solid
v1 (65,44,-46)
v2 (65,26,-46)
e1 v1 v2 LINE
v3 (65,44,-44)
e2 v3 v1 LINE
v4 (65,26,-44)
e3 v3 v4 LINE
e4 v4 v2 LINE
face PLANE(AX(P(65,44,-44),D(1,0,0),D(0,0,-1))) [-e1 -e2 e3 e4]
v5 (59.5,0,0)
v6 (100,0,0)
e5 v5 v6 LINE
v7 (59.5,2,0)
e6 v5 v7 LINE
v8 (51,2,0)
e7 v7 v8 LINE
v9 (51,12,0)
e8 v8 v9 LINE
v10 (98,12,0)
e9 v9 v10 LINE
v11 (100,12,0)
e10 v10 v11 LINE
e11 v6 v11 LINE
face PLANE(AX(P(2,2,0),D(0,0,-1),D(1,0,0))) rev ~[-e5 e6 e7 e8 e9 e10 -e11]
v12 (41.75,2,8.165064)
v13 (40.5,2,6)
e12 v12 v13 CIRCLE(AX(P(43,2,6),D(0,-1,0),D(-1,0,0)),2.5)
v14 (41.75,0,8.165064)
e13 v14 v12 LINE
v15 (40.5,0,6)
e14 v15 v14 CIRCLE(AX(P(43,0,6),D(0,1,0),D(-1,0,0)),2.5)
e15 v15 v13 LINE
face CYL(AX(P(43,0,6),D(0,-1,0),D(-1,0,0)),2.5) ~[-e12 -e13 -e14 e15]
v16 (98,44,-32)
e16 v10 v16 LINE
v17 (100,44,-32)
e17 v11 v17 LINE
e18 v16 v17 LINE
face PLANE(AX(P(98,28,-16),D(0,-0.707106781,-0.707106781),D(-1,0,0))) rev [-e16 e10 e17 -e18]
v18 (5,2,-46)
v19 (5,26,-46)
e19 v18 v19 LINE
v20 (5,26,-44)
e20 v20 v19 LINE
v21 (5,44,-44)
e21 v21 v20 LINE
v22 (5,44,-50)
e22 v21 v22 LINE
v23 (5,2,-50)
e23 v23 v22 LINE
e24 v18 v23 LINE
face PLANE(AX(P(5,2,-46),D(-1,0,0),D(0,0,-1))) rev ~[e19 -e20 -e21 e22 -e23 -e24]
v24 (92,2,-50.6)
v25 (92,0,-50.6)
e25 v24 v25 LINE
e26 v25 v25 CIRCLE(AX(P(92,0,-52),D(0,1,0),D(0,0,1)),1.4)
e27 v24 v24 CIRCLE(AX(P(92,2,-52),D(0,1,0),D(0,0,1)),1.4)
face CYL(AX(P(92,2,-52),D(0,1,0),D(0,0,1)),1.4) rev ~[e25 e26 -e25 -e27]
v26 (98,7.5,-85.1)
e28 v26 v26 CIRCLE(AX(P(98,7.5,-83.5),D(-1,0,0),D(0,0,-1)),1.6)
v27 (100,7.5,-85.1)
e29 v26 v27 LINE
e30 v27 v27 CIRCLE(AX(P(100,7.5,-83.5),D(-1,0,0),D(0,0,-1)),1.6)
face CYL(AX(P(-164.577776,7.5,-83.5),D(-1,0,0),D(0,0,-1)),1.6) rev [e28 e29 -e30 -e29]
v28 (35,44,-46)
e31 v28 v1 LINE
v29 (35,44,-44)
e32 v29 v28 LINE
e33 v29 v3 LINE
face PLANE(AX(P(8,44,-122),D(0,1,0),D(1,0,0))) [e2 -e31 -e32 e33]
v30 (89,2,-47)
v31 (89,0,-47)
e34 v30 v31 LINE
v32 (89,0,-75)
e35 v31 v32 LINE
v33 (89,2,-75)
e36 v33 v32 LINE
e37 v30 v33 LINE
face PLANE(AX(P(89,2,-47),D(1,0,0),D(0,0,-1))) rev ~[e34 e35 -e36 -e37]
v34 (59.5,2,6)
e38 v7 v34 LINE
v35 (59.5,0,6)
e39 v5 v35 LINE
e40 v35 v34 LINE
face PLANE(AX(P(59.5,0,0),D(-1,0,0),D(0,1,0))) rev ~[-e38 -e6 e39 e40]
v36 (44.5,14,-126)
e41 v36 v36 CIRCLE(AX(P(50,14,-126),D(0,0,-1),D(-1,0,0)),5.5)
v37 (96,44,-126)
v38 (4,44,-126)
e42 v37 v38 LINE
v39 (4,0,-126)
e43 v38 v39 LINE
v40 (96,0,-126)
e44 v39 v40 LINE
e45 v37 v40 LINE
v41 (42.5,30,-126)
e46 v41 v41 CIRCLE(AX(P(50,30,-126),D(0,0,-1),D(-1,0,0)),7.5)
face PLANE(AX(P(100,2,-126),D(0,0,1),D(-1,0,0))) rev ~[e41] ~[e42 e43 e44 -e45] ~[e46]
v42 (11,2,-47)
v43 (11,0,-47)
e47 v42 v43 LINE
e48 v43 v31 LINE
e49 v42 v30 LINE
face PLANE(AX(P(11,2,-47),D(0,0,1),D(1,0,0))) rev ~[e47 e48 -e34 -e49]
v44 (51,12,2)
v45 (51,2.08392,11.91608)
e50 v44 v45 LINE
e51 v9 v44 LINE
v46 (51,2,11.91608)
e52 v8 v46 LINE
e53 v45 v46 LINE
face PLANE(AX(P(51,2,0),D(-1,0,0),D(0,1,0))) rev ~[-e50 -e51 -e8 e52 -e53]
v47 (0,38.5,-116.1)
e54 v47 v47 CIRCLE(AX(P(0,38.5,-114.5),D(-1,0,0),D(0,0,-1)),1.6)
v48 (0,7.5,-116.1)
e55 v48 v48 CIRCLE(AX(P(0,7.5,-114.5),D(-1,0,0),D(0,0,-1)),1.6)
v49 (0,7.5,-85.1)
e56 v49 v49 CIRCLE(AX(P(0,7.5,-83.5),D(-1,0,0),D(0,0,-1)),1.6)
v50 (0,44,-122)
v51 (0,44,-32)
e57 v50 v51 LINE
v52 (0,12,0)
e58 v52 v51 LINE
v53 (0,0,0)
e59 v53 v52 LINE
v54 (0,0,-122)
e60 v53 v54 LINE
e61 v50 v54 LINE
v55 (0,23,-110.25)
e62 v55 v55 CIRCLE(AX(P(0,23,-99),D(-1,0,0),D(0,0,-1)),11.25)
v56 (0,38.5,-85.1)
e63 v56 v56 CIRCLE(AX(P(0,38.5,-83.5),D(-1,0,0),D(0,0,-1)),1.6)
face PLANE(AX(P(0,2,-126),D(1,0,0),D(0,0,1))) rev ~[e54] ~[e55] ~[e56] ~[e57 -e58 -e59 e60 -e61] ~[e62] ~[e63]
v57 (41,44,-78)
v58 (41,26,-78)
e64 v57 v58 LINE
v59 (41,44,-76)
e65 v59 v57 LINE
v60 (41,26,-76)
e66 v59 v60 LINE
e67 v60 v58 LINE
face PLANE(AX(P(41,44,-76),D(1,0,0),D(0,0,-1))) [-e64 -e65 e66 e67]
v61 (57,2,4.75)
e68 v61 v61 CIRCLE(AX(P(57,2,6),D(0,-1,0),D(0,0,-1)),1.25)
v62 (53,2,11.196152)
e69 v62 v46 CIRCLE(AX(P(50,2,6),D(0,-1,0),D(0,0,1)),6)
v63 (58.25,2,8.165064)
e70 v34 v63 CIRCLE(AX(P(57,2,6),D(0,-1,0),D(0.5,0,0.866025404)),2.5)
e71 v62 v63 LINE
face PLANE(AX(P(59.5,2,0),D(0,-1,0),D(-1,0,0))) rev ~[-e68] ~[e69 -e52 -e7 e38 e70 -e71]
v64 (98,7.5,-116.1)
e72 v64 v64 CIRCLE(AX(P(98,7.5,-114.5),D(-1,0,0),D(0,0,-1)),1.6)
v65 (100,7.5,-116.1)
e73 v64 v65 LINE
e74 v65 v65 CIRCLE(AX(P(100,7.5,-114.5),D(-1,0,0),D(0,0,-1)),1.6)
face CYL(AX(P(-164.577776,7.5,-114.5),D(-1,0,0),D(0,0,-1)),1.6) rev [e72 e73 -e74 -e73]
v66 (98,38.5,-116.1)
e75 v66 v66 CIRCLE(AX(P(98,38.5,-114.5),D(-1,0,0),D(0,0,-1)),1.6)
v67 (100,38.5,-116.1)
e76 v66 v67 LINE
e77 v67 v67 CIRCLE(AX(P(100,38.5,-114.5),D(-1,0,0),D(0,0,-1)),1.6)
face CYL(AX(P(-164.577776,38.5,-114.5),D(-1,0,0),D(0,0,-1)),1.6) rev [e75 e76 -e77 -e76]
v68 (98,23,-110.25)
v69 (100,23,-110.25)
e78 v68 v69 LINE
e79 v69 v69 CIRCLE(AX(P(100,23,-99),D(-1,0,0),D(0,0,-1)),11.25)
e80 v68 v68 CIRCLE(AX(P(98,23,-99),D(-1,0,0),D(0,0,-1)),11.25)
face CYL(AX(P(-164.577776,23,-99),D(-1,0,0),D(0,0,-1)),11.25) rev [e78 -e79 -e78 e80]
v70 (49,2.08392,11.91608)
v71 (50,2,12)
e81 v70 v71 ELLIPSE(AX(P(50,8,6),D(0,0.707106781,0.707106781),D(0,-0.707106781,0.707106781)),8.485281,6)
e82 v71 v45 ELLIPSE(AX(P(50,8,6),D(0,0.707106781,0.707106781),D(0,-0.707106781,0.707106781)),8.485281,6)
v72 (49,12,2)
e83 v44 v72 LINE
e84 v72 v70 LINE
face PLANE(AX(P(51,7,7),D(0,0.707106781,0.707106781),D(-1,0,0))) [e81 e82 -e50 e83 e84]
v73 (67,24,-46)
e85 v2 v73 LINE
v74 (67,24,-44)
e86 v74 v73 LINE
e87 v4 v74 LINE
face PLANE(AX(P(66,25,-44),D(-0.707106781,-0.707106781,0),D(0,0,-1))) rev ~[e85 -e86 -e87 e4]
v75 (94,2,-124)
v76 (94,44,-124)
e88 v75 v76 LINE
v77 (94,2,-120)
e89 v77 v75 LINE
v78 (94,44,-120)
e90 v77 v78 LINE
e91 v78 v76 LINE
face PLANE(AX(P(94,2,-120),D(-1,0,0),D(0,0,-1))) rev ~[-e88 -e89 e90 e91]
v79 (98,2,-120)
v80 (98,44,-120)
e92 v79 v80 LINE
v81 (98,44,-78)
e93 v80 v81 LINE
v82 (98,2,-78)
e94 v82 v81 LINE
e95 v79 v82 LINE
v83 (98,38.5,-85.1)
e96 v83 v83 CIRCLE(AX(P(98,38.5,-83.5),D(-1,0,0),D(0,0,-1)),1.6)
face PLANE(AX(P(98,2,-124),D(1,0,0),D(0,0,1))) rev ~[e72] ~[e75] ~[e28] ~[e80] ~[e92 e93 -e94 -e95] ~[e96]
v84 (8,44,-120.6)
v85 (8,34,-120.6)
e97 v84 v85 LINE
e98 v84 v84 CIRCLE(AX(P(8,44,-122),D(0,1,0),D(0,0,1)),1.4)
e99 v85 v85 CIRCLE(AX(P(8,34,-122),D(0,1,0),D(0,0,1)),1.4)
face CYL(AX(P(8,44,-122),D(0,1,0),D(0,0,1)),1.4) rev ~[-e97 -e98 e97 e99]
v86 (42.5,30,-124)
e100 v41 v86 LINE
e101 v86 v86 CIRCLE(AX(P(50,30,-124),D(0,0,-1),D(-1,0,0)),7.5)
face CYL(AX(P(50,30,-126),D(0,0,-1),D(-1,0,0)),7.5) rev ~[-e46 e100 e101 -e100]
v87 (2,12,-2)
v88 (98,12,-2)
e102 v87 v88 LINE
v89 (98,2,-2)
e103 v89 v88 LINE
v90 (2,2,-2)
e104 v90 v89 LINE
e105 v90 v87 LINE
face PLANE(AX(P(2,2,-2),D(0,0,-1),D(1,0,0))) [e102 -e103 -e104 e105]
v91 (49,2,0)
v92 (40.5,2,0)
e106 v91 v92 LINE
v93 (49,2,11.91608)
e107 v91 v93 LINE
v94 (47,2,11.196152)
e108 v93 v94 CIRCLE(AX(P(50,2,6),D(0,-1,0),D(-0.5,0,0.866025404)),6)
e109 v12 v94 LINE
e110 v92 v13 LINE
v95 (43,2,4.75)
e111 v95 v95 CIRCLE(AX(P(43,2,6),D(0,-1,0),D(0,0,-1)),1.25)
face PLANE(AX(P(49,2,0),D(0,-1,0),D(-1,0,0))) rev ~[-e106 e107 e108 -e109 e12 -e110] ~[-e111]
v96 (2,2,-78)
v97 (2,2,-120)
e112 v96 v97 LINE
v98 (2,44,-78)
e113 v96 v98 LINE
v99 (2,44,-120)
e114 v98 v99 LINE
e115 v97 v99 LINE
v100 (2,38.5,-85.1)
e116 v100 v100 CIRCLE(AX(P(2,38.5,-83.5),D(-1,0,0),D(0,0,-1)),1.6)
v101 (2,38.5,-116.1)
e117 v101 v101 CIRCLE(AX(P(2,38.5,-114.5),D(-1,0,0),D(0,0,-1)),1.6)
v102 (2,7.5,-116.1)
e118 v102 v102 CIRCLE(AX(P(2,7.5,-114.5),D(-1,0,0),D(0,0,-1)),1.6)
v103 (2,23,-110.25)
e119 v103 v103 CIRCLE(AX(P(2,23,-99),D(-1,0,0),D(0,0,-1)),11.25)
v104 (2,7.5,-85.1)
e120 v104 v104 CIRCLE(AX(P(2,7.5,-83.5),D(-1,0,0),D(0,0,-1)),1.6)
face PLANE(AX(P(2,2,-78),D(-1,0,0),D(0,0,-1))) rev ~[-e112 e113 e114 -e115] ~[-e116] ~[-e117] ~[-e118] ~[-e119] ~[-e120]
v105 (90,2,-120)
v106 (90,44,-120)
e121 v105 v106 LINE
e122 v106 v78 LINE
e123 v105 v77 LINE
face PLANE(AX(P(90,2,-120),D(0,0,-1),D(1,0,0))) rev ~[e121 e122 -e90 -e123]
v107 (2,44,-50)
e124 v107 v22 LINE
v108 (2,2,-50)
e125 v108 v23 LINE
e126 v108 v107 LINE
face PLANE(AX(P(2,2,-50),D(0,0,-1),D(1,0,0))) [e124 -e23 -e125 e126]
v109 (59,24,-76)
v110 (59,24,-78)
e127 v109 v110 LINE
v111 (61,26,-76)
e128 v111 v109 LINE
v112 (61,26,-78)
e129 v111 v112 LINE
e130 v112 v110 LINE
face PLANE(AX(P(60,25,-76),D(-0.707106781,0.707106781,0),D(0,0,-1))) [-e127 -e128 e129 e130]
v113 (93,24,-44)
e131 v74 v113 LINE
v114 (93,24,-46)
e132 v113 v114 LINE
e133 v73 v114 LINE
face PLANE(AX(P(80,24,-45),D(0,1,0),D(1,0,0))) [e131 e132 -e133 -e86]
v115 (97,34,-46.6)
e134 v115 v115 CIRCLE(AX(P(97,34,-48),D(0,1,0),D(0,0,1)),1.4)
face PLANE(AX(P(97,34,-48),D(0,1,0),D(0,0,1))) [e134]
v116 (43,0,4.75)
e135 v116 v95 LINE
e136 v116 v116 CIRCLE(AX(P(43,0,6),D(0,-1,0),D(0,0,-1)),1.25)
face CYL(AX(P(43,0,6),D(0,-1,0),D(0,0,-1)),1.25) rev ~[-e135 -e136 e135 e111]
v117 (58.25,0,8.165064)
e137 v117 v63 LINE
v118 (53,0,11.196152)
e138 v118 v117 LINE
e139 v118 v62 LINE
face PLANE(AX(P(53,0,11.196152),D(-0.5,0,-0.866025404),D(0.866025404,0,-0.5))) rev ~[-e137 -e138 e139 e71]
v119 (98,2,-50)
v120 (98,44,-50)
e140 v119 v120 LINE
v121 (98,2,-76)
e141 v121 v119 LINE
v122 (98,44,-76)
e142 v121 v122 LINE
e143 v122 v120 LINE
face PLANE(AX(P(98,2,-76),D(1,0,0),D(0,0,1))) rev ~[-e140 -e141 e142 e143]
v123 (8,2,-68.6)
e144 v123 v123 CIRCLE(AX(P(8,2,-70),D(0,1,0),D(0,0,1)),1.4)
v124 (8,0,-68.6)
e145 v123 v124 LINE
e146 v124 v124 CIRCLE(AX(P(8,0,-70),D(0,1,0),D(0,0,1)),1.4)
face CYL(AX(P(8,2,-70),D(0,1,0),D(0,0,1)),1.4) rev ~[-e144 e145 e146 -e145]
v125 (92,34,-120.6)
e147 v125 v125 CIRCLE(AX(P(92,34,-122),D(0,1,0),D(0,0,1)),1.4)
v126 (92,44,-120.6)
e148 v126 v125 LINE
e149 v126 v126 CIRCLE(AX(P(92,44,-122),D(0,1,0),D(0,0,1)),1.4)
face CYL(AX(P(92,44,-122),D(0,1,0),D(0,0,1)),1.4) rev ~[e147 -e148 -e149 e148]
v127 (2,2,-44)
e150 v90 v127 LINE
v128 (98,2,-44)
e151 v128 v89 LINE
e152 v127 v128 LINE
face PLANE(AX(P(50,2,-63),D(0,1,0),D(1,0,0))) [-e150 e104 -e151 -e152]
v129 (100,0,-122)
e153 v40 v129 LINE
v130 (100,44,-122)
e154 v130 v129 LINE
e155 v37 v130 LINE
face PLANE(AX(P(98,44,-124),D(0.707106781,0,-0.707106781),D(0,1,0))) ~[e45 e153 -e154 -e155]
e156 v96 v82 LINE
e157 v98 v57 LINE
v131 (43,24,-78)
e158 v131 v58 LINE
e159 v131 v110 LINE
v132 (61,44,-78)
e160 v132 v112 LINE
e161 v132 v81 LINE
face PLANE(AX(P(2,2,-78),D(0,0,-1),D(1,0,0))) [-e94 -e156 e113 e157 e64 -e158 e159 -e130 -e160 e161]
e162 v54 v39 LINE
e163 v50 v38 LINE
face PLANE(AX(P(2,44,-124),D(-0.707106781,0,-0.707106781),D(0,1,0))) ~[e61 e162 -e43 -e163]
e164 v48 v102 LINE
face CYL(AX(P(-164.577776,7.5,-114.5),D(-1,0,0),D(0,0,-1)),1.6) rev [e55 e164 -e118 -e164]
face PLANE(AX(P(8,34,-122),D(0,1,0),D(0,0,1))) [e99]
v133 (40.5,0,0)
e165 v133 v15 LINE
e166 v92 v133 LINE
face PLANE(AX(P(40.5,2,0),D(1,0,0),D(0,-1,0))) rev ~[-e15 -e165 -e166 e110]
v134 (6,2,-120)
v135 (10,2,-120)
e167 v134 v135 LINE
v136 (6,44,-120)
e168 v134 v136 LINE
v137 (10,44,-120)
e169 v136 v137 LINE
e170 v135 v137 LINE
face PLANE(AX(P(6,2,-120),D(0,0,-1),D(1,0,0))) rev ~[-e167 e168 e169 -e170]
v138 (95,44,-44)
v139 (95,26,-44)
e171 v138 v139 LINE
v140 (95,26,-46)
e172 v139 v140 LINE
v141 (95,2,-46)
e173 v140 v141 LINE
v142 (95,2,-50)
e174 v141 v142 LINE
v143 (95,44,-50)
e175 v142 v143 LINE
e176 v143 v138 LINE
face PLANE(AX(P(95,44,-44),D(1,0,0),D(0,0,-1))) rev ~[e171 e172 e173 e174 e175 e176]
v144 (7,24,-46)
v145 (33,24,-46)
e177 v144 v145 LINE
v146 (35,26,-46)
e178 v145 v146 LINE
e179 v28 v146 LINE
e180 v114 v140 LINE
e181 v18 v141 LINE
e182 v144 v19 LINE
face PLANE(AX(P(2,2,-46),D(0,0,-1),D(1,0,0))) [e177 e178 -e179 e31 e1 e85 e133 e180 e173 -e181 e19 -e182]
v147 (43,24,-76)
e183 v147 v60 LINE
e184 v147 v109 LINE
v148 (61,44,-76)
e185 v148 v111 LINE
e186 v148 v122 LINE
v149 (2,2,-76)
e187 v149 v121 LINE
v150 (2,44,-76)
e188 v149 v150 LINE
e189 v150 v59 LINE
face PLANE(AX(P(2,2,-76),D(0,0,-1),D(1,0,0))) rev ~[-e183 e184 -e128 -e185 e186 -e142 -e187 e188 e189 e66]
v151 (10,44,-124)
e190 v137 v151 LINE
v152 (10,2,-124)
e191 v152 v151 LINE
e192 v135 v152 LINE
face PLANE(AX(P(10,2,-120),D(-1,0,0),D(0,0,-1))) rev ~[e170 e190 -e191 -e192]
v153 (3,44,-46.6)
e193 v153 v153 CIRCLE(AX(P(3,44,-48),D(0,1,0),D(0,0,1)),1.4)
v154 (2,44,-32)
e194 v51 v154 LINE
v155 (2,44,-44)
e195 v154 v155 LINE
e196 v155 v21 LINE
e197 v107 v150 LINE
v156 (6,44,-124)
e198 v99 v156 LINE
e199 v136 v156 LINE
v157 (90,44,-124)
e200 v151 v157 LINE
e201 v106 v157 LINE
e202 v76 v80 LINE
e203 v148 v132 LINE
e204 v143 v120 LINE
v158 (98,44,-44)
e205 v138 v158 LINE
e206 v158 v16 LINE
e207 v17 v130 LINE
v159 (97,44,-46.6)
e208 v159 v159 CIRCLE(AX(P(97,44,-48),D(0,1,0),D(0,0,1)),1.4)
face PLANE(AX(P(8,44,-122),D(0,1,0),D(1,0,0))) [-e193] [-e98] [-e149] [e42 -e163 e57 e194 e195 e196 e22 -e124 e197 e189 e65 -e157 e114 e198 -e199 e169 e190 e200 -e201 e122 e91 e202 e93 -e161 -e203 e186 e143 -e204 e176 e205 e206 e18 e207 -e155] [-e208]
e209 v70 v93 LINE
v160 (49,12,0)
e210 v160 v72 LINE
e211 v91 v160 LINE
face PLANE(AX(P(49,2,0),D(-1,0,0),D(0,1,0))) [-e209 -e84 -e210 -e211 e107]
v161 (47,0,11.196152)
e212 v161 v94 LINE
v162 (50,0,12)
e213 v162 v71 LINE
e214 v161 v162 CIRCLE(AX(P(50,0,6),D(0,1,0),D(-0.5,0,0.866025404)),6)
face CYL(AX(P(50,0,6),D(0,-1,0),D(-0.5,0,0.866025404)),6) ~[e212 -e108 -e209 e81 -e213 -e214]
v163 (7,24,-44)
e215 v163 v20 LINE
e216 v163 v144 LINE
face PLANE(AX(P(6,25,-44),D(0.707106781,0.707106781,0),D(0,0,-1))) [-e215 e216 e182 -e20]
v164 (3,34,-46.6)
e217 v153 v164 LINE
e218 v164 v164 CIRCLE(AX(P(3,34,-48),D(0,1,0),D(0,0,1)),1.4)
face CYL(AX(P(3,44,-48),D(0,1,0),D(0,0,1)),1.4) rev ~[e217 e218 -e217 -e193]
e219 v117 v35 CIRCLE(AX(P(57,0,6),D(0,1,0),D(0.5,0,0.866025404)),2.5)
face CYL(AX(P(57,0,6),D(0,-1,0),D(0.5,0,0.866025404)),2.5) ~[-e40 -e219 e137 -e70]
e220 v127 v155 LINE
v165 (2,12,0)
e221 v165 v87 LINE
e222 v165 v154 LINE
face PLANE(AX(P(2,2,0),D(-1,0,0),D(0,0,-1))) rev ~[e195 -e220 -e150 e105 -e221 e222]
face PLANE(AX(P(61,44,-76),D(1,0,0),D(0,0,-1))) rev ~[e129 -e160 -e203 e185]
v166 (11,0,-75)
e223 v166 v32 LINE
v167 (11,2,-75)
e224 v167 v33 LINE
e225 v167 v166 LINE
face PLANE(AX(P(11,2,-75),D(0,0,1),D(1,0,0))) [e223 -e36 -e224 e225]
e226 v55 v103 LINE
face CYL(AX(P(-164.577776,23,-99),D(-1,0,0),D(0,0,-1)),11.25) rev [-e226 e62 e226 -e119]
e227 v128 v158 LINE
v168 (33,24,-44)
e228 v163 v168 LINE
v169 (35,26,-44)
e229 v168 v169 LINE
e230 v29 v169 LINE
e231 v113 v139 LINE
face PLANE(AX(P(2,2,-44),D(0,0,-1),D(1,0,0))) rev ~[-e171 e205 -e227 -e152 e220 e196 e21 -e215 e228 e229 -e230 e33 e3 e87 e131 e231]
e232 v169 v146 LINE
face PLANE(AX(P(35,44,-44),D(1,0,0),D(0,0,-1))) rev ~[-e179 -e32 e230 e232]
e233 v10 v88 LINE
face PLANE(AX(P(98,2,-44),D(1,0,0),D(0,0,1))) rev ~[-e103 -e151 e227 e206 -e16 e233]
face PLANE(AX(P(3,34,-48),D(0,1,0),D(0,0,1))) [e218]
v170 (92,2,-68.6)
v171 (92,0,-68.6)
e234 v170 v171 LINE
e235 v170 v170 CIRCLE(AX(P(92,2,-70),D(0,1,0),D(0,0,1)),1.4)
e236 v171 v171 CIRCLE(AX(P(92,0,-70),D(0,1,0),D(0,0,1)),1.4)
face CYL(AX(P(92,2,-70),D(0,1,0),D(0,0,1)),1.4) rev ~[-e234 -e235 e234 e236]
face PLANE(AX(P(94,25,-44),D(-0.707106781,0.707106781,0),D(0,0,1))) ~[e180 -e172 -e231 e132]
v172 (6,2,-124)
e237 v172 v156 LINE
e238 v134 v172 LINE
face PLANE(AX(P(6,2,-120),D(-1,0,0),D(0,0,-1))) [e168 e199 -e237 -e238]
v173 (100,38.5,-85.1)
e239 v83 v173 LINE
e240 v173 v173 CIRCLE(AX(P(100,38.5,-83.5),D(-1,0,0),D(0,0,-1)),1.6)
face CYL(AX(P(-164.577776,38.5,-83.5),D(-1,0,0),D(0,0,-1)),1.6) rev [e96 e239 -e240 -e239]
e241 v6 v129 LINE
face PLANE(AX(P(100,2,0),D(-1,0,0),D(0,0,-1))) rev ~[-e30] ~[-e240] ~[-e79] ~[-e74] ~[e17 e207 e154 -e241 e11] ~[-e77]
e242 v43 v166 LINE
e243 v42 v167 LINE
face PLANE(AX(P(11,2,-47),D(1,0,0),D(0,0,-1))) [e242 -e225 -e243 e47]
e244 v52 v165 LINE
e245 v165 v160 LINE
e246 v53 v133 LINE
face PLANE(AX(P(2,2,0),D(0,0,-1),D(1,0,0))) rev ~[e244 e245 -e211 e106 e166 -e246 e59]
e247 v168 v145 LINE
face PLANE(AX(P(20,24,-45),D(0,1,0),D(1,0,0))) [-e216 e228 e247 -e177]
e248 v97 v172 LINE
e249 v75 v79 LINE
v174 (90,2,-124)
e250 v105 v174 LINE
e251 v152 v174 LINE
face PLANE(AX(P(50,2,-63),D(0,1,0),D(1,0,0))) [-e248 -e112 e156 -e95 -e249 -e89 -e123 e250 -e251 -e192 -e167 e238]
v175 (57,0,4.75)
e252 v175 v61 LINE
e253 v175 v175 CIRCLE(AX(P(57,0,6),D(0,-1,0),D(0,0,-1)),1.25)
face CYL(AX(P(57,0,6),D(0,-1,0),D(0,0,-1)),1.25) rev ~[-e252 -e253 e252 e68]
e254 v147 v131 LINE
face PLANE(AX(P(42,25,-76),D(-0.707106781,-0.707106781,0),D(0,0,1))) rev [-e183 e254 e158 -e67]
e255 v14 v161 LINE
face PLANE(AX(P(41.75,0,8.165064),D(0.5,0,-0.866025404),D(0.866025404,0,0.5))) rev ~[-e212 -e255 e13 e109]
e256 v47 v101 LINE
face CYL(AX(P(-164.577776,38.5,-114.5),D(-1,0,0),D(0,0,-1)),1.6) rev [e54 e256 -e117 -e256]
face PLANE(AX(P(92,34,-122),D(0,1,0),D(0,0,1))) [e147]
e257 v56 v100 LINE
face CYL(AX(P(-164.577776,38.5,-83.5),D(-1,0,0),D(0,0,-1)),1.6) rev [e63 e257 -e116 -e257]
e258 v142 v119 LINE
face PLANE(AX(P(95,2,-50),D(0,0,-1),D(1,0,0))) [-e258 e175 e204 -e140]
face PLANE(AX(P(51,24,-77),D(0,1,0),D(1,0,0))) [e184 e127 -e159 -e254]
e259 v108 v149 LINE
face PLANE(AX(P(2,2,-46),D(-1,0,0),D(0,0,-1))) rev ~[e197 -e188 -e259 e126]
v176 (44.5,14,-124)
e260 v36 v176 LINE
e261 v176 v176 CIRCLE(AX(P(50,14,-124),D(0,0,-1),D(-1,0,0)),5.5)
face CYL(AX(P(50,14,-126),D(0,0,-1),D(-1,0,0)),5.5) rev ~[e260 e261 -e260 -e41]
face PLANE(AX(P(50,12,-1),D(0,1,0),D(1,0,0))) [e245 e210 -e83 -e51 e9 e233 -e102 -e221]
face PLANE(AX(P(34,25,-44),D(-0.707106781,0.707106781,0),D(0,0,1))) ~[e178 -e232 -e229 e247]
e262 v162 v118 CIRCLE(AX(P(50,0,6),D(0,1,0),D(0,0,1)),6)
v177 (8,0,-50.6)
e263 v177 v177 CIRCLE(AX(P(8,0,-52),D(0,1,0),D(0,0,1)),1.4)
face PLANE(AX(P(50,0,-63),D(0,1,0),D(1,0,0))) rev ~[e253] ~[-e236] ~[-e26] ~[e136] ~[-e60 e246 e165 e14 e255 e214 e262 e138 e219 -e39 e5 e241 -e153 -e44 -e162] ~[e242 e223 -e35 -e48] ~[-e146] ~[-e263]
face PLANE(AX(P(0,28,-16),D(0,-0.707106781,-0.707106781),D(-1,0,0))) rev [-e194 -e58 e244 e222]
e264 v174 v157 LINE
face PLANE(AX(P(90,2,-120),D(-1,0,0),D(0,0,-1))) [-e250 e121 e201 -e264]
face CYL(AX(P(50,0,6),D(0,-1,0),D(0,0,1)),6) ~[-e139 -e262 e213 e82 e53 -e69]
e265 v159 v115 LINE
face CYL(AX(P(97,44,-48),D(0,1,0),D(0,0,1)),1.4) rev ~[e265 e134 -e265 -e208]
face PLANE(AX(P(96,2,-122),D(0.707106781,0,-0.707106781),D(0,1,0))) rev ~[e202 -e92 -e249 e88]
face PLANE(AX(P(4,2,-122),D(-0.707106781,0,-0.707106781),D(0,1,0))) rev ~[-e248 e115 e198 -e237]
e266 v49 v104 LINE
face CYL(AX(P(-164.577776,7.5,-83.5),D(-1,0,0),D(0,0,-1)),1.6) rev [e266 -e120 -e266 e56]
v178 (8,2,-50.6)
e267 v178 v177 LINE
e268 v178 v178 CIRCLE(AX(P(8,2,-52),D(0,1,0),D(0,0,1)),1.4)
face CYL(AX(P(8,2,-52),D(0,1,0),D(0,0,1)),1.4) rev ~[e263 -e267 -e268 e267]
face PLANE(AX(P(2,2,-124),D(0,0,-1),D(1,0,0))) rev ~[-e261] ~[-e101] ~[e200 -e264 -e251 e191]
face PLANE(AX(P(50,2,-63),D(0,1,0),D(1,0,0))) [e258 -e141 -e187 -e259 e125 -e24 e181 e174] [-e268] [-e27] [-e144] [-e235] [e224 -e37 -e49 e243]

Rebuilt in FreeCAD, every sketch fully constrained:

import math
import FreeCAD as App
import Part
import Sketcher

V = App.Vector
Q = App.Units.Quantity


def edges_at(feature, points):
    """Names of the edges that pass closest to the given points."""
    edges = feature.Shape.Edges
    near = lambda p: min(range(len(edges)), key=lambda i: edges[i].distToShape(Part.Vertex(*p))[0])
    return sorted({f"Edge{near(p) + 1}" for p in points})


def add_polygon(sketch, points):
    """Adds a closed chain of lines whose ends are joined by coincident constraints."""
    first, n = sketch.GeometryCount, len(points)
    for a, b in zip(points, points[1:] + points[:1]):
        sketch.addGeometry(Part.LineSegment(App.Vector(*a, 0), App.Vector(*b, 0)), False)
    for i in range(n):
        sketch.addConstraint(Sketcher.Constraint("Coincident", first + i, 2, first + (i + 1) % n, 1))

doc = App.newDocument("Part")
params = doc.addObject("Spreadsheet::Sheet", "Params")
for row, (alias, value) in enumerate([
    ("sketch1_width", "100 mm"),
    ("sketch1_height", "126 mm"),
    ("pad1_length", "2 mm"),
    ("sketch2_width", "2 mm"),
    ("sketch2_width2", "96 mm"),
    ("sketch2_height", "126 mm"),
    ("sketch2_height2", "44 mm"),
    ("sketch2_height3", "30 mm"),
    ("pad2_length", "42 mm"),
    ("chamfer_size", "32 mm"),
    ("chamfer2_size", "4 mm"),
    ("sketch3_diameter", "22.5 mm"),
    ("sketch3_diameter2", "3.2 mm"),
    ("sketch4_diameter", "2.8 mm"),
    ("sketch4_width", "78 mm"),
    ("sketch4_height", "28 mm"),
    ("sketch5_width", "96 mm"),
    ("sketch5_height", "2 mm"),
    ("pad3_length", "10 mm"),
    ("sketch6_width", "4 mm"),
    ("sketch6_width2", "3 mm"),
    ("pad4_length", "42 mm"),
    ("sketch7_diameter", "2.8 mm"),
    ("pocket3_length", "10 mm"),
    ("sketch8_width", "30 mm"),
    ("sketch8_width2", "20 mm"),
    ("sketch8_height", "2 mm"),
    ("pocket4_length", "20 mm"),
    ("chamfer3_size", "2 mm"),
    ("sketch9_diameter", "11 mm"),
    ("sketch9_diameter2", "15 mm"),
    ("pocket5_length", "2 mm"),
    ("sketch10_width", "2 mm"),
    ("sketch10_width2", "19 mm"),
    ("sketch10_height", "10 mm"),
    ("pad5_length", "12 mm"),
    ("chamfer4_size", "10 mm"),
    ("sketch11_radius", "6 mm"),
    ("sketch11_diameter", "2.5 mm"),
    ("sketch11_radius2", "2.5 mm"),
    ("pocket6_length", "2.3 mm"),
], start=1):
    params.set(f"A{row}", alias)
    params.set(f"B{row}", "=" + value)
    params.setAlias(f"B{row}", alias)

body = doc.addObject("PartDesign::Body", "Body")

# Sketch on XZ plane
sketch1 = body.newObject("Sketcher::SketchObject", "Sketch")
sketch1.AttachmentSupport = (doc.getObject("XZ_Plane"), [""])
sketch1.MapMode = "FlatFace"
add_polygon(sketch1, [(0, -126), (0, 0), (100, 0), (100, -126)])  # lines 0-3
sketch1.addConstraint([
    Sketcher.Constraint("Vertical", 0),
    Sketcher.Constraint("Horizontal", 1),
    Sketcher.Constraint("Vertical", 2),
    Sketcher.Constraint("Horizontal", 3),
    Sketcher.Constraint("Coincident", 0, 2, -1, 1),
    Sketcher.Constraint("DistanceX", 1, 1, 1, 2, Q("100 mm")),
    Sketcher.Constraint("DistanceY", 0, 1, 0, 2, Q("126 mm")),
])
sketch1.setExpression("Constraints[9]", "Params.sketch1_width")
sketch1.setExpression("Constraints[10]", "Params.sketch1_height")
pad1 = body.newObject("PartDesign::Pad", "Pad")
pad1.Profile = sketch1
pad1.setExpression("Length", "Params.pad1_length")
pad1.Reversed = True

# Sketch on XZ plane
sketch2 = body.newObject("Sketcher::SketchObject", "Sketch001")
sketch2.AttachmentSupport = (doc.getObject("XZ_Plane"), [""])
sketch2.MapMode = "FlatFace"
sketch2.AttachmentOffset = App.Placement(V(0, 0, -2), App.Rotation())
add_polygon(sketch2, [(0, -126), (0, 0), (2, 0), (2, -44), (98, -44), (98, 0), (100, 0), (100, -126)])  # lines 0-7
add_polygon(sketch2, [(2, -46), (2, -76), (98, -76), (98, -46)])  # lines 8-11
add_polygon(sketch2, [(2, -78), (2, -124), (98, -124), (98, -78)])  # lines 12-15
sketch2.addConstraint([
    Sketcher.Constraint("Vertical", 0),
    Sketcher.Constraint("Horizontal", 1),
    Sketcher.Constraint("Vertical", 2),
    Sketcher.Constraint("Horizontal", 3),
    Sketcher.Constraint("Vertical", 4),
    Sketcher.Constraint("Horizontal", 5),
    Sketcher.Constraint("Vertical", 6),
    Sketcher.Constraint("Horizontal", 7),
    Sketcher.Constraint("Vertical", 8),
    Sketcher.Constraint("Horizontal", 9),
    Sketcher.Constraint("Vertical", 10),
    Sketcher.Constraint("Horizontal", 11),
    Sketcher.Constraint("Vertical", 12),
    Sketcher.Constraint("Horizontal", 13),
    Sketcher.Constraint("Vertical", 14),
    Sketcher.Constraint("Horizontal", 15),
    Sketcher.Constraint("Coincident", 0, 2, -1, 1),
    Sketcher.Constraint("PointOnObject", 4, 2, -1),
    Sketcher.Constraint("Vertical", 2, 2, 8, 2),
    Sketcher.Constraint("Vertical", 4, 2, 9, 2),
    Sketcher.Constraint("Vertical", 11, 2, 12, 2),
    Sketcher.Constraint("Vertical", 10, 2, 13, 2),
    Sketcher.Constraint("Equal", 1, 5),
    Sketcher.Constraint("DistanceX", 1, 1, 1, 2, Q("2 mm")),
    Sketcher.Constraint("DistanceX", 3, 1, 3, 2, Q("96 mm")),
    Sketcher.Constraint("DistanceY", 0, 1, 0, 2, Q("126 mm")),
    Sketcher.Constraint("DistanceY", 2, 2, 2, 1, Q("44 mm")),
    Sketcher.Constraint("DistanceY", 8, 2, 8, 1, Q("30 mm")),
    Sketcher.Constraint("DistanceY", 12, 2, 12, 1, Q("46 mm")),
    Sketcher.Constraint("DistanceY", 8, 2, -1, 1, Q("76 mm")),
    Sketcher.Constraint("DistanceY", 12, 2, -1, 1, Q("124 mm")),
])
sketch2.setExpression("Constraints[39]", "Params.sketch2_width")
sketch2.setExpression("Constraints[40]", "Params.sketch2_width2")
sketch2.setExpression("Constraints[41]", "Params.sketch2_height")
sketch2.setExpression("Constraints[42]", "Params.sketch2_height2")
sketch2.setExpression("Constraints[43]", "Params.sketch2_height3")
pad2 = body.newObject("PartDesign::Pad", "Pad001")
pad2.Profile = sketch2
pad2.setExpression("Length", "Params.pad2_length")
pad2.Reversed = True
doc.recompute()

chamfer = body.newObject("PartDesign::Chamfer", "Chamfer")
chamfer.Base = (pad2, edges_at(pad2, [(99, 44, 0), (1, 44, 0)]))
chamfer.setExpression("Size", "Params.chamfer_size")
doc.recompute()

chamfer2 = body.newObject("PartDesign::Chamfer", "Chamfer001")
chamfer2.Base = (chamfer, edges_at(chamfer, [
    (2, 23, -124),
    (98, 23, -124),
    (0, 22, -126),
    (100, 22, -126),
]))
chamfer2.setExpression("Size", "Params.chamfer2_size")

# Sketch on YZ plane
sketch3 = body.newObject("Sketcher::SketchObject", "Sketch002")
sketch3.AttachmentSupport = (doc.getObject("YZ_Plane"), [""])
sketch3.MapMode = "FlatFace"
sketch3.AttachmentOffset = App.Placement(V(0, 0, 2), App.Rotation())
sketch3.addGeometry([
    Part.Circle(V(23, -99, 0), V(0, 0, 1), 11.2),  # 0
    Part.Circle(V(38.5, -83.5, 0), V(0, 0, 1), 1.6),  # 1
    Part.Circle(V(38.5, -114.5, 0), V(0, 0, 1), 1.6),  # 2
    Part.Circle(V(7.5, -114.5, 0), V(0, 0, 1), 1.6),  # 3
    Part.Circle(V(7.5, -83.5, 0), V(0, 0, 1), 1.6),  # 4
], False)
sketch3.addConstraint([
    Sketcher.Constraint("Equal", 1, 2),
    Sketcher.Constraint("Equal", 2, 3),
    Sketcher.Constraint("Equal", 3, 4),
    Sketcher.Constraint("Horizontal", 2, 3, 3, 3),
    Sketcher.Constraint("Horizontal", 1, 3, 4, 3),
    Sketcher.Constraint("Vertical", 1, 3, 2, 3),
    Sketcher.Constraint("Vertical", 3, 3, 4, 3),
    Sketcher.Constraint("Diameter", 0, Q("22.5 mm")),
    Sketcher.Constraint("Diameter", 1, Q("3.2 mm")),
    Sketcher.Constraint("DistanceX", -1, 1, 0, 3, Q("23 mm")),
    Sketcher.Constraint("DistanceY", 0, 3, -1, 1, Q("99 mm")),
    Sketcher.Constraint("DistanceY", 2, 3, 1, 3, Q("31 mm")),
    Sketcher.Constraint("DistanceX", 3, 3, 2, 3, Q("31 mm")),
    Sketcher.Constraint("DistanceX", -1, 1, 1, 3, Q("38.5 mm")),
    Sketcher.Constraint("DistanceY", 1, 3, -1, 1, Q("83.5 mm")),
])
sketch3.setExpression("Constraints[7]", "Params.sketch3_diameter")
sketch3.setExpression("Constraints[8]", "Params.sketch3_diameter2")
pocket1 = body.newObject("PartDesign::Pocket", "Pocket")
pocket1.Profile = sketch3
pocket1.Type = "ThroughAll"
pocket1.Midplane = True

# Sketch on XZ plane
sketch4 = body.newObject("Sketcher::SketchObject", "Sketch003")
sketch4.AttachmentSupport = (doc.getObject("XZ_Plane"), [""])
sketch4.MapMode = "FlatFace"
sketch4.AttachmentOffset = App.Placement(V(0, 0, -2), App.Rotation())
sketch4.addGeometry(Part.Circle(V(8, -70, 0), V(0, 0, 1), 1.4), False)  # 0
sketch4.addGeometry(Part.Circle(V(8, -52, 0), V(0, 0, 1), 1.4), False)  # 1
sketch4.addGeometry(Part.Circle(V(92, -70, 0), V(0, 0, 1), 1.4), False)  # 2
sketch4.addGeometry(Part.Circle(V(92, -52, 0), V(0, 0, 1), 1.4), False)  # 3
add_polygon(sketch4, [(11, -75), (11, -47), (89, -47), (89, -75)])  # lines 4-7
sketch4.addConstraint([
    Sketcher.Constraint("Vertical", 4),
    Sketcher.Constraint("Horizontal", 5),
    Sketcher.Constraint("Vertical", 6),
    Sketcher.Constraint("Horizontal", 7),
    Sketcher.Constraint("Equal", 0, 1),
    Sketcher.Constraint("Equal", 1, 2),
    Sketcher.Constraint("Equal", 2, 3),
    Sketcher.Constraint("Horizontal", 0, 3, 2, 3),
    Sketcher.Constraint("Horizontal", 1, 3, 3, 3),
    Sketcher.Constraint("Vertical", 0, 3, 1, 3),
    Sketcher.Constraint("Vertical", 2, 3, 3, 3),
    Sketcher.Constraint("Diameter", 0, Q("2.8 mm")),
    Sketcher.Constraint("DistanceX", 5, 1, 5, 2, Q("78 mm")),
    Sketcher.Constraint("DistanceY", 4, 1, 4, 2, Q("28 mm")),
    Sketcher.Constraint("DistanceX", -1, 1, 0, 3, Q("8 mm")),
    Sketcher.Constraint("DistanceY", 0, 3, -1, 1, Q("70 mm")),
    Sketcher.Constraint("DistanceY", 1, 3, -1, 1, Q("52 mm")),
    Sketcher.Constraint("DistanceX", -1, 1, 2, 3, Q("92 mm")),
    Sketcher.Constraint("DistanceX", -1, 1, 4, 2, Q("11 mm")),
    Sketcher.Constraint("DistanceY", 4, 2, -1, 1, Q("47 mm")),
])
sketch4.setExpression("Constraints[15]", "Params.sketch4_diameter")
sketch4.setExpression("Constraints[16]", "Params.sketch4_width")
sketch4.setExpression("Constraints[17]", "Params.sketch4_height")
pocket2 = body.newObject("PartDesign::Pocket", "Pocket001")
pocket2.Profile = sketch4
pocket2.Type = "ThroughAll"
pocket2.Reversed = True

# Sketch on XZ plane
sketch5 = body.newObject("Sketcher::SketchObject", "Sketch004")
sketch5.AttachmentSupport = (doc.getObject("XZ_Plane"), [""])
sketch5.MapMode = "FlatFace"
sketch5.AttachmentOffset = App.Placement(V(0, 0, -2), App.Rotation())
add_polygon(sketch5, [(2, -2), (2, 0), (98, 0), (98, -2)])  # lines 0-3
sketch5.addConstraint([
    Sketcher.Constraint("Vertical", 0),
    Sketcher.Constraint("Horizontal", 1),
    Sketcher.Constraint("Vertical", 2),
    Sketcher.Constraint("Horizontal", 3),
    Sketcher.Constraint("PointOnObject", 0, 2, -1),
    Sketcher.Constraint("DistanceX", 1, 1, 1, 2, Q("96 mm")),
    Sketcher.Constraint("DistanceY", 0, 1, 0, 2, Q("2 mm")),
    Sketcher.Constraint("DistanceX", -1, 1, 0, 2, Q("2 mm")),
])
sketch5.setExpression("Constraints[9]", "Params.sketch5_width")
sketch5.setExpression("Constraints[10]", "Params.sketch5_height")
pad3 = body.newObject("PartDesign::Pad", "Pad002")
pad3.Profile = sketch5
pad3.setExpression("Length", "Params.pad3_length")
pad3.Reversed = True

# Sketch on XZ plane
sketch6 = body.newObject("Sketcher::SketchObject", "Sketch005")
sketch6.AttachmentSupport = (doc.getObject("XZ_Plane"), [""])
sketch6.MapMode = "FlatFace"
sketch6.AttachmentOffset = App.Placement(V(0, 0, -2), App.Rotation())
add_polygon(sketch6, [(6, -124), (6, -120), (10, -120), (10, -124)])  # lines 0-3
add_polygon(sketch6, [(90, -124), (90, -120), (94, -120), (94, -124)])  # lines 4-7
add_polygon(sketch6, [(95, -50), (95, -46), (98, -46), (98, -50)])  # lines 8-11
add_polygon(sketch6, [(2, -50), (2, -46), (5, -46), (5, -50)])  # lines 12-15
sketch6.addConstraint([
    Sketcher.Constraint("Vertical", 0),
    Sketcher.Constraint("Horizontal", 1),
    Sketcher.Constraint("Vertical", 2),
    Sketcher.Constraint("Horizontal", 3),
    Sketcher.Constraint("Vertical", 4),
    Sketcher.Constraint("Horizontal", 5),
    Sketcher.Constraint("Vertical", 6),
    Sketcher.Constraint("Horizontal", 7),
    Sketcher.Constraint("Vertical", 8),
    Sketcher.Constraint("Horizontal", 9),
    Sketcher.Constraint("Vertical", 10),
    Sketcher.Constraint("Horizontal", 11),
    Sketcher.Constraint("Vertical", 12),
    Sketcher.Constraint("Horizontal", 13),
    Sketcher.Constraint("Vertical", 14),
    Sketcher.Constraint("Horizontal", 15),
    Sketcher.Constraint("Horizontal", 1, 2, 4, 2),
    Sketcher.Constraint("Horizontal", 3, 2, 6, 2),
    Sketcher.Constraint("Horizontal", 9, 2, 12, 2),
    Sketcher.Constraint("Horizontal", 11, 2, 14, 2),
    Sketcher.Constraint("Equal", 3, 5),
    Sketcher.Constraint("Equal", 11, 13),
    Sketcher.Constraint("Equal", 7, 0),
    Sketcher.Constraint("Equal", 6, 8),
    Sketcher.Constraint("DistanceX", 1, 1, 1, 2, Q("4 mm")),
    Sketcher.Constraint("DistanceX", 9, 1, 9, 2, Q("3 mm")),
    Sketcher.Constraint("DistanceX", -1, 1, 0, 2, Q("6 mm")),
    Sketcher.Constraint("DistanceY", 0, 2, -1, 1, Q("120 mm")),
    Sketcher.Constraint("DistanceX", -1, 1, 4, 2, Q("90 mm")),
    Sketcher.Constraint("DistanceX", -1, 1, 8, 2, Q("95 mm")),
    Sketcher.Constraint("DistanceY", 8, 2, -1, 1, Q("46 mm")),
    Sketcher.Constraint("DistanceX", -1, 1, 12, 2, Q("2 mm")),
])
sketch6.setExpression("Constraints[40]", "Params.sketch6_width")
sketch6.setExpression("Constraints[41]", "Params.sketch6_width2")
pad4 = body.newObject("PartDesign::Pad", "Pad003")
pad4.Profile = sketch6
pad4.setExpression("Length", "Params.pad4_length")
pad4.Reversed = True

# Sketch on XZ plane
sketch7 = body.newObject("Sketcher::SketchObject", "Sketch006")
sketch7.AttachmentSupport = (doc.getObject("XZ_Plane"), [""])
sketch7.MapMode = "FlatFace"
sketch7.AttachmentOffset = App.Placement(V(0, 0, -44), App.Rotation())
sketch7.addGeometry([
    Part.Circle(V(3, -48, 0), V(0, 0, 1), 1.4),
    Part.Circle(V(97, -48, 0), V(0, 0, 1), 1.4),
    Part.Circle(V(92, -122, 0), V(0, 0, 1), 1.4),
    Part.Circle(V(8, -122, 0), V(0, 0, 1), 1.4),
], False)
sketch7.addConstraint([
    Sketcher.Constraint("Equal", 0, 1),
    Sketcher.Constraint("Equal", 1, 2),
    Sketcher.Constraint("Equal", 2, 3),
    Sketcher.Constraint("Horizontal", 0, 3, 1, 3),
    Sketcher.Constraint("Horizontal", 2, 3, 3, 3),
    Sketcher.Constraint("Diameter", 0, Q("2.8 mm")),
    Sketcher.Constraint("DistanceX", -1, 1, 0, 3, Q("3 mm")),
    Sketcher.Constraint("DistanceY", 0, 3, -1, 1, Q("48 mm")),
    Sketcher.Constraint("DistanceX", -1, 1, 1, 3, Q("97 mm")),
    Sketcher.Constraint("DistanceX", -1, 1, 2, 3, Q("92 mm")),
    Sketcher.Constraint("DistanceY", 2, 3, -1, 1, Q("122 mm")),
    Sketcher.Constraint("DistanceX", -1, 1, 3, 3, Q("8 mm")),
])
sketch7.setExpression("Constraints[5]", "Params.sketch7_diameter")
pocket3 = body.newObject("PartDesign::Pocket", "Pocket002")
pocket3.Profile = sketch7
pocket3.setExpression("Length", "Params.pocket3_length")
pocket3.Reversed = True

# Sketch on XZ plane
sketch8 = body.newObject("Sketcher::SketchObject", "Sketch007")
sketch8.AttachmentSupport = (doc.getObject("XZ_Plane"), [""])
sketch8.MapMode = "FlatFace"
sketch8.AttachmentOffset = App.Placement(V(0, 0, -44), App.Rotation())
add_polygon(sketch8, [(65, -46), (65, -44), (95, -44), (95, -46)])  # lines 0-3
add_polygon(sketch8, [(5, -46), (5, -44), (35, -44), (35, -46)])  # lines 4-7
add_polygon(sketch8, [(41, -78), (41, -76), (61, -76), (61, -78)])  # lines 8-11
sketch8.addConstraint([
    Sketcher.Constraint("Vertical", 0),
    Sketcher.Constraint("Horizontal", 1),
    Sketcher.Constraint("Vertical", 2),
    Sketcher.Constraint("Horizontal", 3),
    Sketcher.Constraint("Vertical", 4),
    Sketcher.Constraint("Horizontal", 5),
    Sketcher.Constraint("Vertical", 6),
    Sketcher.Constraint("Horizontal", 7),
    Sketcher.Constraint("Vertical", 8),
    Sketcher.Constraint("Horizontal", 9),
    Sketcher.Constraint("Vertical", 10),
    Sketcher.Constraint("Horizontal", 11),
    Sketcher.Constraint("Horizontal", 1, 2, 4, 2),
    Sketcher.Constraint("Horizontal", 3, 2, 6, 2),
    Sketcher.Constraint("Equal", 3, 5),
    Sketcher.Constraint("Equal", 6, 8),
    Sketcher.Constraint("DistanceX", 1, 1, 1, 2, Q("30 mm")),
    Sketcher.Constraint("DistanceX", 9, 1, 9, 2, Q("20 mm")),
    Sketcher.Constraint("DistanceY", 0, 1, 0, 2, Q("2 mm")),
    Sketcher.Constraint("DistanceX", -1, 1, 0, 2, Q("65 mm")),
    Sketcher.Constraint("DistanceY", 0, 2, -1, 1, Q("44 mm")),
    Sketcher.Constraint("DistanceX", -1, 1, 4, 2, Q("5 mm")),
    Sketcher.Constraint("DistanceX", -1, 1, 8, 2, Q("41 mm")),
    Sketcher.Constraint("DistanceY", 8, 2, -1, 1, Q("76 mm")),
])
sketch8.setExpression("Constraints[28]", "Params.sketch8_width")
sketch8.setExpression("Constraints[29]", "Params.sketch8_width2")
sketch8.setExpression("Constraints[30]", "Params.sketch8_height")
pocket4 = body.newObject("PartDesign::Pocket", "Pocket003")
pocket4.Profile = sketch8
pocket4.setExpression("Length", "Params.pocket4_length")
pocket4.Reversed = True
doc.recompute()

chamfer3 = body.newObject("PartDesign::Chamfer", "Chamfer002")
chamfer3.Base = (pocket4, edges_at(pocket4, [
    (41, 24, -77),
    (61, 24, -77),
    (95, 24, -45),
    (65, 24, -45),
    (5, 24, -45),
    (35, 24, -45),
]))
chamfer3.setExpression("Size", "Params.chamfer3_size")

# Sketch on XY plane
sketch9 = body.newObject("Sketcher::SketchObject", "Sketch008")
sketch9.AttachmentSupport = (doc.getObject("XY_Plane"), [""])
sketch9.MapMode = "FlatFace"
sketch9.AttachmentOffset = App.Placement(V(0, 0, -126), App.Rotation())
sketch9.addGeometry([
    Part.Circle(V(50, 14, 0), V(0, 0, 1), 6),
    Part.Circle(V(50, 30, 0), V(0, 0, 1), 8),
], False)
sketch9.addConstraint([
    Sketcher.Constraint("Vertical", 0, 3, 1, 3),
    Sketcher.Constraint("Diameter", 0, Q("11 mm")),
    Sketcher.Constraint("Diameter", 1, Q("15 mm")),
    Sketcher.Constraint("DistanceX", -1, 1, 0, 3, Q("50 mm")),
    Sketcher.Constraint("DistanceY", -1, 1, 0, 3, Q("14 mm")),
    Sketcher.Constraint("DistanceY", -1, 1, 1, 3, Q("30 mm")),
])
sketch9.setExpression("Constraints[1]", "Params.sketch9_diameter")
sketch9.setExpression("Constraints[2]", "Params.sketch9_diameter2")
pocket5 = body.newObject("PartDesign::Pocket", "Pocket004")
pocket5.Profile = sketch9
pocket5.setExpression("Length", "Params.pocket5_length")
pocket5.Reversed = True

# Sketch on XY plane
sketch10 = body.newObject("Sketcher::SketchObject", "Sketch009")
sketch10.AttachmentSupport = (doc.getObject("XY_Plane"), [""])
sketch10.MapMode = "FlatFace"
add_polygon(sketch10, [(59.5, 0), (59.5, 2), (51, 2), (51, 12), (49, 12), (49, 2), (40.5, 2), (40.5, 0)])  # lines 0-7
sketch10.addConstraint([
    Sketcher.Constraint("Vertical", 0),
    Sketcher.Constraint("Horizontal", 1),
    Sketcher.Constraint("Vertical", 2),
    Sketcher.Constraint("Horizontal", 3),
    Sketcher.Constraint("Vertical", 4),
    Sketcher.Constraint("Horizontal", 5),
    Sketcher.Constraint("Vertical", 6),
    Sketcher.Constraint("Horizontal", 7),
    Sketcher.Constraint("PointOnObject", 6, 2, -1),
    Sketcher.Constraint("Horizontal", 1, 2, 4, 2),
    Sketcher.Constraint("Equal", 1, 5),
    Sketcher.Constraint("Equal", 3, 0),
    Sketcher.Constraint("DistanceX", 3, 2, 3, 1, Q("2 mm")),
    Sketcher.Constraint("DistanceX", 7, 1, 7, 2, Q("19 mm")),
    Sketcher.Constraint("DistanceY", 2, 1, 2, 2, Q("10 mm")),
    Sketcher.Constraint("DistanceX", -1, 1, 1, 2, Q("51 mm")),
])
sketch10.setExpression("Constraints[20]", "Params.sketch10_width")
sketch10.setExpression("Constraints[21]", "Params.sketch10_width2")
sketch10.setExpression("Constraints[22]", "Params.sketch10_height")
pad5 = body.newObject("PartDesign::Pad", "Pad004")
pad5.Profile = sketch10
pad5.setExpression("Length", "Params.pad5_length")
doc.recompute()

chamfer4 = body.newObject("PartDesign::Chamfer", "Chamfer003")
chamfer4.Base = (pad5, edges_at(pad5, [(50, 12, 12)]))
chamfer4.setExpression("Size", "Params.chamfer4_size")

# Sketch on XZ plane
sketch11 = body.newObject("Sketcher::SketchObject", "Sketch010")
sketch11.AttachmentSupport = (doc.getObject("XZ_Plane"), [""])
sketch11.MapMode = "FlatFace"
sketch11.addGeometry([
    Part.ArcOfCircle(Part.Circle(V(43, 6, 0), V(0, 0, 1), 2.5), math.radians(120), math.radians(180)),  # 0
    Part.LineSegment(V(41.8, 8.2, 0), V(47, 11.2, 0)),  # 1
    Part.ArcOfCircle(Part.Circle(V(50, 6, 0), V(0, 0, 1), 6), math.radians(90), math.radians(120)),  # 2
    Part.LineSegment(V(50, 12, 0), V(40.5, 12, 0)),  # 3
    Part.LineSegment(V(40.5, 12, 0), V(40.5, 6, 0)),  # 4
    Part.LineSegment(V(59.5, 12, 0), V(50, 12, 0)),  # 5
    Part.ArcOfCircle(Part.Circle(V(50, 6, 0), V(0, 0, 1), 6), math.radians(60), math.radians(90)),  # 6
    Part.LineSegment(V(53, 11.2, 0), V(58.2, 8.2, 0)),  # 7
    Part.ArcOfCircle(Part.Circle(V(57, 6, 0), V(0, 0, 1), 2.5), math.radians(0), math.radians(60)),  # 8
    Part.LineSegment(V(59.5, 6, 0), V(59.5, 12, 0)),  # 9
    Part.Circle(V(57, 6, 0), V(0, 0, 1), 1.2),  # 10
    Part.Circle(V(43, 6, 0), V(0, 0, 1), 1.2),  # 11
], False)
sketch11.addConstraint([
    Sketcher.Constraint("Tangent", 0, 1, 1, 1),
    Sketcher.Constraint("Tangent", 1, 2, 2, 2),
    Sketcher.Constraint("Tangent", 2, 1, 3, 1),
    Sketcher.Constraint("Coincident", 3, 2, 4, 1),
    Sketcher.Constraint("Tangent", 4, 2, 0, 2),
    Sketcher.Constraint("Tangent", 5, 2, 6, 2),
    Sketcher.Constraint("Tangent", 6, 1, 7, 1),
    Sketcher.Constraint("Tangent", 7, 2, 8, 2),
    Sketcher.Constraint("Tangent", 8, 1, 9, 1),
    Sketcher.Constraint("Coincident", 9, 2, 5, 1),
    Sketcher.Constraint("Horizontal", 3),
    Sketcher.Constraint("Vertical", 4),
    Sketcher.Constraint("Horizontal", 5),
    Sketcher.Constraint("Vertical", 9),
    Sketcher.Constraint("Coincident", 6, 3, 2, 3),
    Sketcher.Constraint("Coincident", 10, 3, 8, 3),
    Sketcher.Constraint("Coincident", 11, 3, 0, 3),
    Sketcher.Constraint("Equal", 2, 6),
    Sketcher.Constraint("Equal", 0, 8),
    Sketcher.Constraint("Equal", 10, 11),
    Sketcher.Constraint("Horizontal", 0, 3, 2, 3),
    Sketcher.Constraint("Horizontal", 6, 3, 8, 3),
    Sketcher.Constraint("Horizontal", 1, 2, 6, 1),
    Sketcher.Constraint("Radius", 2, Q("6 mm")),
    Sketcher.Constraint("Diameter", 10, Q("2.5 mm")),
    Sketcher.Constraint("Radius", 0, Q("2.5 mm")),
    Sketcher.Constraint("Angle", 1, Q("30 deg")),
    Sketcher.Constraint("DistanceX", -1, 1, 0, 3, Q("43 mm")),
    Sketcher.Constraint("DistanceY", -1, 1, 0, 3, Q("6 mm")),
])
sketch11.setExpression("Constraints[23]", "Params.sketch11_radius")
sketch11.setExpression("Constraints[24]", "Params.sketch11_diameter")
sketch11.setExpression("Constraints[25]", "Params.sketch11_radius2")
pocket6 = body.newObject("PartDesign::Pocket", "Pocket005")
pocket6.Profile = sketch11
pocket6.setExpression("Length", "Params.pocket6_length")

doc.recompute()
